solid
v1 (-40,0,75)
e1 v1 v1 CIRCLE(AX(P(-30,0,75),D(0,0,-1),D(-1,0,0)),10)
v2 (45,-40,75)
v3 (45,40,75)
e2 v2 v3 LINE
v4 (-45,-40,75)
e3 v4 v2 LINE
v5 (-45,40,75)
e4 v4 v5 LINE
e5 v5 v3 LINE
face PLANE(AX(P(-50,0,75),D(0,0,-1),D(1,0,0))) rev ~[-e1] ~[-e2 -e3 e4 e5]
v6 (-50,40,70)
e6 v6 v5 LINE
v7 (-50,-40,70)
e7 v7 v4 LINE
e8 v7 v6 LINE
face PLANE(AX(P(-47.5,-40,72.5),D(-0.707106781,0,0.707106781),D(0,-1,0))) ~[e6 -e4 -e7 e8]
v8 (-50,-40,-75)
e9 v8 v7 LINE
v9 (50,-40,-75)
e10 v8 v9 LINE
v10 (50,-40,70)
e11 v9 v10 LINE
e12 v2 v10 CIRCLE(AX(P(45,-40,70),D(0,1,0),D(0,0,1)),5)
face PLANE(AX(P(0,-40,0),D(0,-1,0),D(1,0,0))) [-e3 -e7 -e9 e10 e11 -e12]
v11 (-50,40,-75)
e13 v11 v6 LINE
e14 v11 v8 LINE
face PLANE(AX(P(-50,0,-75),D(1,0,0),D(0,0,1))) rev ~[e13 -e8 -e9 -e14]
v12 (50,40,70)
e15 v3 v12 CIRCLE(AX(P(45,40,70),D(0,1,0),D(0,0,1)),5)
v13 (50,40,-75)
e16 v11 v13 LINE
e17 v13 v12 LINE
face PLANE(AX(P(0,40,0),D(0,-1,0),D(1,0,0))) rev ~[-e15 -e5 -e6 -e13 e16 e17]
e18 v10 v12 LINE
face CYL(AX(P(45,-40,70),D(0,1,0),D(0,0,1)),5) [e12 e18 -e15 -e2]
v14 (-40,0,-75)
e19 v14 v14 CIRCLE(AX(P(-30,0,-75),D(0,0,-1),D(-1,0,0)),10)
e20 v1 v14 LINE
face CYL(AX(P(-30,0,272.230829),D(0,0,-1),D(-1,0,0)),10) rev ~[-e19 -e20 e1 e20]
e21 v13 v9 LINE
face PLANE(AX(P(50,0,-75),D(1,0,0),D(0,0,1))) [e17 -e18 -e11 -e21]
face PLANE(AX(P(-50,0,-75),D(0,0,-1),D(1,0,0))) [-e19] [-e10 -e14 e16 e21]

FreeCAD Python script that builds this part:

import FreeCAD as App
import Part
import Sketcher
Q = App.Units.Quantity


def edges_at(feature, points):
    """Names of the edges that pass closest to the given points."""
    edges = feature.Shape.Edges
    near = lambda p: min(range(len(edges)), key=lambda i: edges[i].distToShape(Part.Vertex(*p))[0])
    return sorted({f"Edge{near(p) + 1}" for p in points})

doc = App.newDocument("Part")
params = doc.addObject("Spreadsheet::Sheet", "Params")
for row, (alias, value) in enumerate([
    ("sketch1_width", "100 mm"),
    ("sketch1_height", "150 mm"),
    ("pad1_length", "80 mm"),
    ("sketch2_diameter", "20 mm"),
    ("hole_diameter", "20 mm"),
    ("chamfer_size", "5 mm"),
    ("fillet_radius", "5 mm"),
], start=1):
    params.set(f"A{row}", alias)
    params.set(f"B{row}", "=" + value)
    params.setAlias(f"B{row}", alias)

body = doc.addObject("PartDesign::Body", "Body")

sketch1 = doc.addObject("Sketcher::SketchObject", "Sketch")
body.addObject(sketch1)
sketch1.AttachmentSupport = (doc.XZ_Plane, [""])
sketch1.MapMode = "FlatFace"
sketch1.addGeometry([
    Part.LineSegment(App.Vector(-50, 75, 0), App.Vector(-50, -75, 0)),
    Part.LineSegment(App.Vector(-50, -75, 0), App.Vector(50, -75, 0)),
    Part.LineSegment(App.Vector(50, -75, 0), App.Vector(50, 75, 0)),
    Part.LineSegment(App.Vector(50, 75, 0), App.Vector(-50, 75, 0)),
], False)
sketch1.addConstraint([
    Sketcher.Constraint("Coincident", 0, 2, 1, 1),
    Sketcher.Constraint("Coincident", 1, 2, 2, 1),
    Sketcher.Constraint("Coincident", 2, 2, 3, 1),
    Sketcher.Constraint("Coincident", 3, 2, 0, 1),
    Sketcher.Constraint("Vertical", 0),
    Sketcher.Constraint("Horizontal", 1),
    Sketcher.Constraint("Vertical", 2),
    Sketcher.Constraint("Horizontal", 3),
    Sketcher.Constraint("Symmetric", 0, 2, 2, 2, -1, 1),
    Sketcher.Constraint("DistanceX", 1, 1, 1, 2, Q("100 mm")),
    Sketcher.Constraint("DistanceY", 0, 2, 0, 1, Q("150 mm")),
])
sketch1.setExpression("Constraints[9]", "Params.sketch1_width")
sketch1.setExpression("Constraints[10]", "Params.sketch1_height")
pad1 = doc.addObject("PartDesign::Pad", "Pad")
body.addObject(pad1)
pad1.Profile = sketch1
pad1.setExpression("Length", "Params.pad1_length")
pad1.Midplane = True

sketch2 = doc.addObject("Sketcher::SketchObject", "Sketch001")
body.addObject(sketch2)
sketch2.AttachmentSupport = (doc.XY_Plane, [""])
sketch2.MapMode = "FlatFace"
sketch2.AttachmentOffset = App.Placement(App.Vector(0, 0, 75), App.Rotation())
sketch2.addGeometry(Part.Circle(App.Vector(-30, 0, 0), App.Vector(0, 0, 1), 10), False)
sketch2.addConstraint([
    Sketcher.Constraint("PointOnObject", 0, 3, -1),
    Sketcher.Constraint("Diameter", 0, Q("20 mm")),
    Sketcher.Constraint("DistanceX", 0, 3, -1, 1, Q("30 mm")),
])
sketch2.setExpression("Constraints[1]", "Params.sketch2_diameter")
doc.recompute()
hole = doc.addObject("PartDesign::Hole", "Hole")
body.addObject(hole)
hole.Profile = sketch2
hole.ThreadType = "None"
hole.setExpression("Diameter", "Params.hole_diameter")
hole.DepthType = "ThroughAll"
doc.recompute()

chamfer = doc.addObject("PartDesign::Chamfer", "Chamfer")
body.addObject(chamfer)
chamfer.Base = (hole, edges_at(hole, [(-50, 0, 75)]))
chamfer.setExpression("Size", "Params.chamfer_size")
doc.recompute()

fillet = doc.addObject("PartDesign::Fillet", "Fillet")
body.addObject(fillet)
fillet.Base = (chamfer, edges_at(chamfer, [(50, 0, 75)]))
fillet.setExpression("Radius", "Params.fillet_radius")

doc.recompute()
